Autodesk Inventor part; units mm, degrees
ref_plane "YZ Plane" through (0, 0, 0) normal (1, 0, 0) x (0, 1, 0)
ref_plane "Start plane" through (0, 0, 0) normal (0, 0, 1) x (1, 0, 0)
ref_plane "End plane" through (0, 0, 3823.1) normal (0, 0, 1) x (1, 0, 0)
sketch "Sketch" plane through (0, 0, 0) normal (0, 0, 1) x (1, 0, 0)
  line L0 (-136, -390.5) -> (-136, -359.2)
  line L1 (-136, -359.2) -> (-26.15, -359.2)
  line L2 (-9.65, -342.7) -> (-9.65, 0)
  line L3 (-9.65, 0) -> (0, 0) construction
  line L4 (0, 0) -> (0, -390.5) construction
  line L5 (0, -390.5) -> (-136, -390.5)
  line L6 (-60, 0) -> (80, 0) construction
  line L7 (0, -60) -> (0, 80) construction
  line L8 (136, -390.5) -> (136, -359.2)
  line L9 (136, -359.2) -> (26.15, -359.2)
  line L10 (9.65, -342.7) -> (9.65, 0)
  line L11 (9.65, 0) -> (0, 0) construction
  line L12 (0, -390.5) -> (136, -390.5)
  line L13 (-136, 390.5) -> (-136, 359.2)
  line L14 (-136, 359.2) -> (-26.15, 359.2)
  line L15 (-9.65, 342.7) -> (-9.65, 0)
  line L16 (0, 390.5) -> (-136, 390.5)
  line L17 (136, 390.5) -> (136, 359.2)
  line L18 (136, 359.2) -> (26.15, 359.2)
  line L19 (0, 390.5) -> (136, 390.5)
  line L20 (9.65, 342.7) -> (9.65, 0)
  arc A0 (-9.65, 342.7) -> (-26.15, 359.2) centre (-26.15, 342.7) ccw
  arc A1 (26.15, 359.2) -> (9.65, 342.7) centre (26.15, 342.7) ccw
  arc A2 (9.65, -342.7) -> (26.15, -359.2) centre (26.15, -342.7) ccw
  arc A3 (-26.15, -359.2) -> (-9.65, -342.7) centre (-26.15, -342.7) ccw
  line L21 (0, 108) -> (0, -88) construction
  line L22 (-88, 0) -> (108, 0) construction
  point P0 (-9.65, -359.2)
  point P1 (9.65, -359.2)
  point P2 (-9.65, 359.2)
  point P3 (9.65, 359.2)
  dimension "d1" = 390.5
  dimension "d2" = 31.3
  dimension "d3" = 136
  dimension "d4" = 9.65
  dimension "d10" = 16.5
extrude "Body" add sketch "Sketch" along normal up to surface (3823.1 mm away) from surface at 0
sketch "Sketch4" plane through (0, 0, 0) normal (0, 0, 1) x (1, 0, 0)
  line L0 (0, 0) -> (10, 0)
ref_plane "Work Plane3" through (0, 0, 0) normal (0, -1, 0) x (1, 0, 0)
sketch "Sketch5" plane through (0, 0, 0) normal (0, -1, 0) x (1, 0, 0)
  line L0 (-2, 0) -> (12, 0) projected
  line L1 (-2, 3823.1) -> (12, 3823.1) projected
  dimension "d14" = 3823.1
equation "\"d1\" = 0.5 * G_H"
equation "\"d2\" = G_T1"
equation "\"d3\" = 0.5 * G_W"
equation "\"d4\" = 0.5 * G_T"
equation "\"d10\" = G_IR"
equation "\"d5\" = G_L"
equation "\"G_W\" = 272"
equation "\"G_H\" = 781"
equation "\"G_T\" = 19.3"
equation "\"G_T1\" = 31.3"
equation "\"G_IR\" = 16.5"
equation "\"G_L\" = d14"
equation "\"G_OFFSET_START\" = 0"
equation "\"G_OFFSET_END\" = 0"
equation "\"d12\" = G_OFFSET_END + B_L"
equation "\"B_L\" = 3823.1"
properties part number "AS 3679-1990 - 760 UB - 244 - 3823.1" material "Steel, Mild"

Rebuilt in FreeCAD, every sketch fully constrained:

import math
import FreeCAD as App
import Part
import Sketcher
Q = App.Units.Quantity

doc = App.newDocument("Part")
body = doc.addObject("PartDesign::Body", "Body")

# Sketch on XY plane
sketch1 = body.newObject("Sketcher::SketchObject", "Sketch")
sketch1.AttachmentSupport = (doc.getObject("XY_Plane"), [""])
sketch1.MapMode = "FlatFace"
sketch1.addGeometry([
    Part.LineSegment(App.Vector(-136, -359, 0), App.Vector(-136, -390, 0)),  # 0
    Part.LineSegment(App.Vector(-136, -390, 0), App.Vector(136, -390, 0)),  # 1
    Part.LineSegment(App.Vector(136, -390, 0), App.Vector(136, -359, 0)),  # 2
    Part.LineSegment(App.Vector(136, -359, 0), App.Vector(26, -359, 0)),  # 3
    Part.ArcOfCircle(Part.Circle(App.Vector(26, -343, 0), App.Vector(0, 0, 1), 16), math.radians(180), math.radians(270)),  # 4
    Part.LineSegment(App.Vector(10, -343, 0), App.Vector(10, 343, 0)),  # 5
    Part.ArcOfCircle(Part.Circle(App.Vector(26, 343, 0), App.Vector(0, 0, 1), 16), math.radians(90), math.radians(180)),  # 6
    Part.LineSegment(App.Vector(26, 359, 0), App.Vector(136, 359, 0)),  # 7
    Part.LineSegment(App.Vector(136, 359, 0), App.Vector(136, 390, 0)),  # 8
    Part.LineSegment(App.Vector(136, 390, 0), App.Vector(-136, 390, 0)),  # 9
    Part.LineSegment(App.Vector(-136, 390, 0), App.Vector(-136, 359, 0)),  # 10
    Part.LineSegment(App.Vector(-136, 359, 0), App.Vector(-26, 359, 0)),  # 11
    Part.ArcOfCircle(Part.Circle(App.Vector(-26, 343, 0), App.Vector(0, 0, 1), 16), math.radians(0), math.radians(90)),  # 12
    Part.LineSegment(App.Vector(-10, 343, 0), App.Vector(-10, -343, 0)),  # 13
    Part.ArcOfCircle(Part.Circle(App.Vector(-26, -343, 0), App.Vector(0, 0, 1), 16), math.radians(-90), math.radians(0)),  # 14
    Part.LineSegment(App.Vector(-26, -359, 0), App.Vector(-136, -359, 0)),  # 15
], False)
sketch1.addConstraint([
    Sketcher.Constraint("Coincident", 0, 2, 1, 1),
    Sketcher.Constraint("Coincident", 1, 2, 2, 1),
    Sketcher.Constraint("Coincident", 2, 2, 3, 1),
    Sketcher.Constraint("Tangent", 3, 2, 4, 2),
    Sketcher.Constraint("Tangent", 4, 1, 5, 1),
    Sketcher.Constraint("Tangent", 5, 2, 6, 2),
    Sketcher.Constraint("Tangent", 6, 1, 7, 1),
    Sketcher.Constraint("Coincident", 7, 2, 8, 1),
    Sketcher.Constraint("Coincident", 8, 2, 9, 1),
    Sketcher.Constraint("Coincident", 9, 2, 10, 1),
    Sketcher.Constraint("Coincident", 10, 2, 11, 1),
    Sketcher.Constraint("Tangent", 11, 2, 12, 2),
    Sketcher.Constraint("Tangent", 12, 1, 13, 1),
    Sketcher.Constraint("Tangent", 13, 2, 14, 2),
    Sketcher.Constraint("Tangent", 14, 1, 15, 1),
    Sketcher.Constraint("Coincident", 15, 2, 0, 1),
    Sketcher.Constraint("Vertical", 0),
    Sketcher.Constraint("Horizontal", 1),
    Sketcher.Constraint("Vertical", 2),
    Sketcher.Constraint("Horizontal", 3),
    Sketcher.Constraint("Vertical", 5),
    Sketcher.Constraint("Horizontal", 7),
    Sketcher.Constraint("Vertical", 8),
    Sketcher.Constraint("Horizontal", 9),
    Sketcher.Constraint("Vertical", 10),
    Sketcher.Constraint("Horizontal", 11),
    Sketcher.Constraint("Vertical", 13),
    Sketcher.Constraint("Horizontal", 15),
    Sketcher.Constraint("Equal", 4, 6),
    Sketcher.Constraint("Equal", 6, 12),
    Sketcher.Constraint("Equal", 12, 14),
    Sketcher.Constraint("Symmetric", 4, 3, 12, 3, -1, 1),
    Sketcher.Constraint("Symmetric", 0, 2, 8, 2, -1, 1),
    Sketcher.Constraint("Symmetric", 7, 2, 10, 2, -2),
    Sketcher.Constraint("Symmetric", 2, 2, 15, 2, -2),
    Sketcher.Constraint("Radius", 4, Q("16.5 mm")),
    Sketcher.Constraint("DistanceY", 0, 2, 0, 1, Q("31.3 mm")),
    Sketcher.Constraint("DistanceX", 0, 2, -1, 1, Q("136 mm")),
    Sketcher.Constraint("DistanceY", 0, 2, -1, 1, Q("390.5 mm")),
    Sketcher.Constraint("DistanceX", -1, 1, 4, 1, Q("9.65 mm")),
])
pad1 = body.newObject("PartDesign::Pad", "Pad")
pad1.Profile = sketch1
pad1.Length = 3823.1

doc.recompute()
